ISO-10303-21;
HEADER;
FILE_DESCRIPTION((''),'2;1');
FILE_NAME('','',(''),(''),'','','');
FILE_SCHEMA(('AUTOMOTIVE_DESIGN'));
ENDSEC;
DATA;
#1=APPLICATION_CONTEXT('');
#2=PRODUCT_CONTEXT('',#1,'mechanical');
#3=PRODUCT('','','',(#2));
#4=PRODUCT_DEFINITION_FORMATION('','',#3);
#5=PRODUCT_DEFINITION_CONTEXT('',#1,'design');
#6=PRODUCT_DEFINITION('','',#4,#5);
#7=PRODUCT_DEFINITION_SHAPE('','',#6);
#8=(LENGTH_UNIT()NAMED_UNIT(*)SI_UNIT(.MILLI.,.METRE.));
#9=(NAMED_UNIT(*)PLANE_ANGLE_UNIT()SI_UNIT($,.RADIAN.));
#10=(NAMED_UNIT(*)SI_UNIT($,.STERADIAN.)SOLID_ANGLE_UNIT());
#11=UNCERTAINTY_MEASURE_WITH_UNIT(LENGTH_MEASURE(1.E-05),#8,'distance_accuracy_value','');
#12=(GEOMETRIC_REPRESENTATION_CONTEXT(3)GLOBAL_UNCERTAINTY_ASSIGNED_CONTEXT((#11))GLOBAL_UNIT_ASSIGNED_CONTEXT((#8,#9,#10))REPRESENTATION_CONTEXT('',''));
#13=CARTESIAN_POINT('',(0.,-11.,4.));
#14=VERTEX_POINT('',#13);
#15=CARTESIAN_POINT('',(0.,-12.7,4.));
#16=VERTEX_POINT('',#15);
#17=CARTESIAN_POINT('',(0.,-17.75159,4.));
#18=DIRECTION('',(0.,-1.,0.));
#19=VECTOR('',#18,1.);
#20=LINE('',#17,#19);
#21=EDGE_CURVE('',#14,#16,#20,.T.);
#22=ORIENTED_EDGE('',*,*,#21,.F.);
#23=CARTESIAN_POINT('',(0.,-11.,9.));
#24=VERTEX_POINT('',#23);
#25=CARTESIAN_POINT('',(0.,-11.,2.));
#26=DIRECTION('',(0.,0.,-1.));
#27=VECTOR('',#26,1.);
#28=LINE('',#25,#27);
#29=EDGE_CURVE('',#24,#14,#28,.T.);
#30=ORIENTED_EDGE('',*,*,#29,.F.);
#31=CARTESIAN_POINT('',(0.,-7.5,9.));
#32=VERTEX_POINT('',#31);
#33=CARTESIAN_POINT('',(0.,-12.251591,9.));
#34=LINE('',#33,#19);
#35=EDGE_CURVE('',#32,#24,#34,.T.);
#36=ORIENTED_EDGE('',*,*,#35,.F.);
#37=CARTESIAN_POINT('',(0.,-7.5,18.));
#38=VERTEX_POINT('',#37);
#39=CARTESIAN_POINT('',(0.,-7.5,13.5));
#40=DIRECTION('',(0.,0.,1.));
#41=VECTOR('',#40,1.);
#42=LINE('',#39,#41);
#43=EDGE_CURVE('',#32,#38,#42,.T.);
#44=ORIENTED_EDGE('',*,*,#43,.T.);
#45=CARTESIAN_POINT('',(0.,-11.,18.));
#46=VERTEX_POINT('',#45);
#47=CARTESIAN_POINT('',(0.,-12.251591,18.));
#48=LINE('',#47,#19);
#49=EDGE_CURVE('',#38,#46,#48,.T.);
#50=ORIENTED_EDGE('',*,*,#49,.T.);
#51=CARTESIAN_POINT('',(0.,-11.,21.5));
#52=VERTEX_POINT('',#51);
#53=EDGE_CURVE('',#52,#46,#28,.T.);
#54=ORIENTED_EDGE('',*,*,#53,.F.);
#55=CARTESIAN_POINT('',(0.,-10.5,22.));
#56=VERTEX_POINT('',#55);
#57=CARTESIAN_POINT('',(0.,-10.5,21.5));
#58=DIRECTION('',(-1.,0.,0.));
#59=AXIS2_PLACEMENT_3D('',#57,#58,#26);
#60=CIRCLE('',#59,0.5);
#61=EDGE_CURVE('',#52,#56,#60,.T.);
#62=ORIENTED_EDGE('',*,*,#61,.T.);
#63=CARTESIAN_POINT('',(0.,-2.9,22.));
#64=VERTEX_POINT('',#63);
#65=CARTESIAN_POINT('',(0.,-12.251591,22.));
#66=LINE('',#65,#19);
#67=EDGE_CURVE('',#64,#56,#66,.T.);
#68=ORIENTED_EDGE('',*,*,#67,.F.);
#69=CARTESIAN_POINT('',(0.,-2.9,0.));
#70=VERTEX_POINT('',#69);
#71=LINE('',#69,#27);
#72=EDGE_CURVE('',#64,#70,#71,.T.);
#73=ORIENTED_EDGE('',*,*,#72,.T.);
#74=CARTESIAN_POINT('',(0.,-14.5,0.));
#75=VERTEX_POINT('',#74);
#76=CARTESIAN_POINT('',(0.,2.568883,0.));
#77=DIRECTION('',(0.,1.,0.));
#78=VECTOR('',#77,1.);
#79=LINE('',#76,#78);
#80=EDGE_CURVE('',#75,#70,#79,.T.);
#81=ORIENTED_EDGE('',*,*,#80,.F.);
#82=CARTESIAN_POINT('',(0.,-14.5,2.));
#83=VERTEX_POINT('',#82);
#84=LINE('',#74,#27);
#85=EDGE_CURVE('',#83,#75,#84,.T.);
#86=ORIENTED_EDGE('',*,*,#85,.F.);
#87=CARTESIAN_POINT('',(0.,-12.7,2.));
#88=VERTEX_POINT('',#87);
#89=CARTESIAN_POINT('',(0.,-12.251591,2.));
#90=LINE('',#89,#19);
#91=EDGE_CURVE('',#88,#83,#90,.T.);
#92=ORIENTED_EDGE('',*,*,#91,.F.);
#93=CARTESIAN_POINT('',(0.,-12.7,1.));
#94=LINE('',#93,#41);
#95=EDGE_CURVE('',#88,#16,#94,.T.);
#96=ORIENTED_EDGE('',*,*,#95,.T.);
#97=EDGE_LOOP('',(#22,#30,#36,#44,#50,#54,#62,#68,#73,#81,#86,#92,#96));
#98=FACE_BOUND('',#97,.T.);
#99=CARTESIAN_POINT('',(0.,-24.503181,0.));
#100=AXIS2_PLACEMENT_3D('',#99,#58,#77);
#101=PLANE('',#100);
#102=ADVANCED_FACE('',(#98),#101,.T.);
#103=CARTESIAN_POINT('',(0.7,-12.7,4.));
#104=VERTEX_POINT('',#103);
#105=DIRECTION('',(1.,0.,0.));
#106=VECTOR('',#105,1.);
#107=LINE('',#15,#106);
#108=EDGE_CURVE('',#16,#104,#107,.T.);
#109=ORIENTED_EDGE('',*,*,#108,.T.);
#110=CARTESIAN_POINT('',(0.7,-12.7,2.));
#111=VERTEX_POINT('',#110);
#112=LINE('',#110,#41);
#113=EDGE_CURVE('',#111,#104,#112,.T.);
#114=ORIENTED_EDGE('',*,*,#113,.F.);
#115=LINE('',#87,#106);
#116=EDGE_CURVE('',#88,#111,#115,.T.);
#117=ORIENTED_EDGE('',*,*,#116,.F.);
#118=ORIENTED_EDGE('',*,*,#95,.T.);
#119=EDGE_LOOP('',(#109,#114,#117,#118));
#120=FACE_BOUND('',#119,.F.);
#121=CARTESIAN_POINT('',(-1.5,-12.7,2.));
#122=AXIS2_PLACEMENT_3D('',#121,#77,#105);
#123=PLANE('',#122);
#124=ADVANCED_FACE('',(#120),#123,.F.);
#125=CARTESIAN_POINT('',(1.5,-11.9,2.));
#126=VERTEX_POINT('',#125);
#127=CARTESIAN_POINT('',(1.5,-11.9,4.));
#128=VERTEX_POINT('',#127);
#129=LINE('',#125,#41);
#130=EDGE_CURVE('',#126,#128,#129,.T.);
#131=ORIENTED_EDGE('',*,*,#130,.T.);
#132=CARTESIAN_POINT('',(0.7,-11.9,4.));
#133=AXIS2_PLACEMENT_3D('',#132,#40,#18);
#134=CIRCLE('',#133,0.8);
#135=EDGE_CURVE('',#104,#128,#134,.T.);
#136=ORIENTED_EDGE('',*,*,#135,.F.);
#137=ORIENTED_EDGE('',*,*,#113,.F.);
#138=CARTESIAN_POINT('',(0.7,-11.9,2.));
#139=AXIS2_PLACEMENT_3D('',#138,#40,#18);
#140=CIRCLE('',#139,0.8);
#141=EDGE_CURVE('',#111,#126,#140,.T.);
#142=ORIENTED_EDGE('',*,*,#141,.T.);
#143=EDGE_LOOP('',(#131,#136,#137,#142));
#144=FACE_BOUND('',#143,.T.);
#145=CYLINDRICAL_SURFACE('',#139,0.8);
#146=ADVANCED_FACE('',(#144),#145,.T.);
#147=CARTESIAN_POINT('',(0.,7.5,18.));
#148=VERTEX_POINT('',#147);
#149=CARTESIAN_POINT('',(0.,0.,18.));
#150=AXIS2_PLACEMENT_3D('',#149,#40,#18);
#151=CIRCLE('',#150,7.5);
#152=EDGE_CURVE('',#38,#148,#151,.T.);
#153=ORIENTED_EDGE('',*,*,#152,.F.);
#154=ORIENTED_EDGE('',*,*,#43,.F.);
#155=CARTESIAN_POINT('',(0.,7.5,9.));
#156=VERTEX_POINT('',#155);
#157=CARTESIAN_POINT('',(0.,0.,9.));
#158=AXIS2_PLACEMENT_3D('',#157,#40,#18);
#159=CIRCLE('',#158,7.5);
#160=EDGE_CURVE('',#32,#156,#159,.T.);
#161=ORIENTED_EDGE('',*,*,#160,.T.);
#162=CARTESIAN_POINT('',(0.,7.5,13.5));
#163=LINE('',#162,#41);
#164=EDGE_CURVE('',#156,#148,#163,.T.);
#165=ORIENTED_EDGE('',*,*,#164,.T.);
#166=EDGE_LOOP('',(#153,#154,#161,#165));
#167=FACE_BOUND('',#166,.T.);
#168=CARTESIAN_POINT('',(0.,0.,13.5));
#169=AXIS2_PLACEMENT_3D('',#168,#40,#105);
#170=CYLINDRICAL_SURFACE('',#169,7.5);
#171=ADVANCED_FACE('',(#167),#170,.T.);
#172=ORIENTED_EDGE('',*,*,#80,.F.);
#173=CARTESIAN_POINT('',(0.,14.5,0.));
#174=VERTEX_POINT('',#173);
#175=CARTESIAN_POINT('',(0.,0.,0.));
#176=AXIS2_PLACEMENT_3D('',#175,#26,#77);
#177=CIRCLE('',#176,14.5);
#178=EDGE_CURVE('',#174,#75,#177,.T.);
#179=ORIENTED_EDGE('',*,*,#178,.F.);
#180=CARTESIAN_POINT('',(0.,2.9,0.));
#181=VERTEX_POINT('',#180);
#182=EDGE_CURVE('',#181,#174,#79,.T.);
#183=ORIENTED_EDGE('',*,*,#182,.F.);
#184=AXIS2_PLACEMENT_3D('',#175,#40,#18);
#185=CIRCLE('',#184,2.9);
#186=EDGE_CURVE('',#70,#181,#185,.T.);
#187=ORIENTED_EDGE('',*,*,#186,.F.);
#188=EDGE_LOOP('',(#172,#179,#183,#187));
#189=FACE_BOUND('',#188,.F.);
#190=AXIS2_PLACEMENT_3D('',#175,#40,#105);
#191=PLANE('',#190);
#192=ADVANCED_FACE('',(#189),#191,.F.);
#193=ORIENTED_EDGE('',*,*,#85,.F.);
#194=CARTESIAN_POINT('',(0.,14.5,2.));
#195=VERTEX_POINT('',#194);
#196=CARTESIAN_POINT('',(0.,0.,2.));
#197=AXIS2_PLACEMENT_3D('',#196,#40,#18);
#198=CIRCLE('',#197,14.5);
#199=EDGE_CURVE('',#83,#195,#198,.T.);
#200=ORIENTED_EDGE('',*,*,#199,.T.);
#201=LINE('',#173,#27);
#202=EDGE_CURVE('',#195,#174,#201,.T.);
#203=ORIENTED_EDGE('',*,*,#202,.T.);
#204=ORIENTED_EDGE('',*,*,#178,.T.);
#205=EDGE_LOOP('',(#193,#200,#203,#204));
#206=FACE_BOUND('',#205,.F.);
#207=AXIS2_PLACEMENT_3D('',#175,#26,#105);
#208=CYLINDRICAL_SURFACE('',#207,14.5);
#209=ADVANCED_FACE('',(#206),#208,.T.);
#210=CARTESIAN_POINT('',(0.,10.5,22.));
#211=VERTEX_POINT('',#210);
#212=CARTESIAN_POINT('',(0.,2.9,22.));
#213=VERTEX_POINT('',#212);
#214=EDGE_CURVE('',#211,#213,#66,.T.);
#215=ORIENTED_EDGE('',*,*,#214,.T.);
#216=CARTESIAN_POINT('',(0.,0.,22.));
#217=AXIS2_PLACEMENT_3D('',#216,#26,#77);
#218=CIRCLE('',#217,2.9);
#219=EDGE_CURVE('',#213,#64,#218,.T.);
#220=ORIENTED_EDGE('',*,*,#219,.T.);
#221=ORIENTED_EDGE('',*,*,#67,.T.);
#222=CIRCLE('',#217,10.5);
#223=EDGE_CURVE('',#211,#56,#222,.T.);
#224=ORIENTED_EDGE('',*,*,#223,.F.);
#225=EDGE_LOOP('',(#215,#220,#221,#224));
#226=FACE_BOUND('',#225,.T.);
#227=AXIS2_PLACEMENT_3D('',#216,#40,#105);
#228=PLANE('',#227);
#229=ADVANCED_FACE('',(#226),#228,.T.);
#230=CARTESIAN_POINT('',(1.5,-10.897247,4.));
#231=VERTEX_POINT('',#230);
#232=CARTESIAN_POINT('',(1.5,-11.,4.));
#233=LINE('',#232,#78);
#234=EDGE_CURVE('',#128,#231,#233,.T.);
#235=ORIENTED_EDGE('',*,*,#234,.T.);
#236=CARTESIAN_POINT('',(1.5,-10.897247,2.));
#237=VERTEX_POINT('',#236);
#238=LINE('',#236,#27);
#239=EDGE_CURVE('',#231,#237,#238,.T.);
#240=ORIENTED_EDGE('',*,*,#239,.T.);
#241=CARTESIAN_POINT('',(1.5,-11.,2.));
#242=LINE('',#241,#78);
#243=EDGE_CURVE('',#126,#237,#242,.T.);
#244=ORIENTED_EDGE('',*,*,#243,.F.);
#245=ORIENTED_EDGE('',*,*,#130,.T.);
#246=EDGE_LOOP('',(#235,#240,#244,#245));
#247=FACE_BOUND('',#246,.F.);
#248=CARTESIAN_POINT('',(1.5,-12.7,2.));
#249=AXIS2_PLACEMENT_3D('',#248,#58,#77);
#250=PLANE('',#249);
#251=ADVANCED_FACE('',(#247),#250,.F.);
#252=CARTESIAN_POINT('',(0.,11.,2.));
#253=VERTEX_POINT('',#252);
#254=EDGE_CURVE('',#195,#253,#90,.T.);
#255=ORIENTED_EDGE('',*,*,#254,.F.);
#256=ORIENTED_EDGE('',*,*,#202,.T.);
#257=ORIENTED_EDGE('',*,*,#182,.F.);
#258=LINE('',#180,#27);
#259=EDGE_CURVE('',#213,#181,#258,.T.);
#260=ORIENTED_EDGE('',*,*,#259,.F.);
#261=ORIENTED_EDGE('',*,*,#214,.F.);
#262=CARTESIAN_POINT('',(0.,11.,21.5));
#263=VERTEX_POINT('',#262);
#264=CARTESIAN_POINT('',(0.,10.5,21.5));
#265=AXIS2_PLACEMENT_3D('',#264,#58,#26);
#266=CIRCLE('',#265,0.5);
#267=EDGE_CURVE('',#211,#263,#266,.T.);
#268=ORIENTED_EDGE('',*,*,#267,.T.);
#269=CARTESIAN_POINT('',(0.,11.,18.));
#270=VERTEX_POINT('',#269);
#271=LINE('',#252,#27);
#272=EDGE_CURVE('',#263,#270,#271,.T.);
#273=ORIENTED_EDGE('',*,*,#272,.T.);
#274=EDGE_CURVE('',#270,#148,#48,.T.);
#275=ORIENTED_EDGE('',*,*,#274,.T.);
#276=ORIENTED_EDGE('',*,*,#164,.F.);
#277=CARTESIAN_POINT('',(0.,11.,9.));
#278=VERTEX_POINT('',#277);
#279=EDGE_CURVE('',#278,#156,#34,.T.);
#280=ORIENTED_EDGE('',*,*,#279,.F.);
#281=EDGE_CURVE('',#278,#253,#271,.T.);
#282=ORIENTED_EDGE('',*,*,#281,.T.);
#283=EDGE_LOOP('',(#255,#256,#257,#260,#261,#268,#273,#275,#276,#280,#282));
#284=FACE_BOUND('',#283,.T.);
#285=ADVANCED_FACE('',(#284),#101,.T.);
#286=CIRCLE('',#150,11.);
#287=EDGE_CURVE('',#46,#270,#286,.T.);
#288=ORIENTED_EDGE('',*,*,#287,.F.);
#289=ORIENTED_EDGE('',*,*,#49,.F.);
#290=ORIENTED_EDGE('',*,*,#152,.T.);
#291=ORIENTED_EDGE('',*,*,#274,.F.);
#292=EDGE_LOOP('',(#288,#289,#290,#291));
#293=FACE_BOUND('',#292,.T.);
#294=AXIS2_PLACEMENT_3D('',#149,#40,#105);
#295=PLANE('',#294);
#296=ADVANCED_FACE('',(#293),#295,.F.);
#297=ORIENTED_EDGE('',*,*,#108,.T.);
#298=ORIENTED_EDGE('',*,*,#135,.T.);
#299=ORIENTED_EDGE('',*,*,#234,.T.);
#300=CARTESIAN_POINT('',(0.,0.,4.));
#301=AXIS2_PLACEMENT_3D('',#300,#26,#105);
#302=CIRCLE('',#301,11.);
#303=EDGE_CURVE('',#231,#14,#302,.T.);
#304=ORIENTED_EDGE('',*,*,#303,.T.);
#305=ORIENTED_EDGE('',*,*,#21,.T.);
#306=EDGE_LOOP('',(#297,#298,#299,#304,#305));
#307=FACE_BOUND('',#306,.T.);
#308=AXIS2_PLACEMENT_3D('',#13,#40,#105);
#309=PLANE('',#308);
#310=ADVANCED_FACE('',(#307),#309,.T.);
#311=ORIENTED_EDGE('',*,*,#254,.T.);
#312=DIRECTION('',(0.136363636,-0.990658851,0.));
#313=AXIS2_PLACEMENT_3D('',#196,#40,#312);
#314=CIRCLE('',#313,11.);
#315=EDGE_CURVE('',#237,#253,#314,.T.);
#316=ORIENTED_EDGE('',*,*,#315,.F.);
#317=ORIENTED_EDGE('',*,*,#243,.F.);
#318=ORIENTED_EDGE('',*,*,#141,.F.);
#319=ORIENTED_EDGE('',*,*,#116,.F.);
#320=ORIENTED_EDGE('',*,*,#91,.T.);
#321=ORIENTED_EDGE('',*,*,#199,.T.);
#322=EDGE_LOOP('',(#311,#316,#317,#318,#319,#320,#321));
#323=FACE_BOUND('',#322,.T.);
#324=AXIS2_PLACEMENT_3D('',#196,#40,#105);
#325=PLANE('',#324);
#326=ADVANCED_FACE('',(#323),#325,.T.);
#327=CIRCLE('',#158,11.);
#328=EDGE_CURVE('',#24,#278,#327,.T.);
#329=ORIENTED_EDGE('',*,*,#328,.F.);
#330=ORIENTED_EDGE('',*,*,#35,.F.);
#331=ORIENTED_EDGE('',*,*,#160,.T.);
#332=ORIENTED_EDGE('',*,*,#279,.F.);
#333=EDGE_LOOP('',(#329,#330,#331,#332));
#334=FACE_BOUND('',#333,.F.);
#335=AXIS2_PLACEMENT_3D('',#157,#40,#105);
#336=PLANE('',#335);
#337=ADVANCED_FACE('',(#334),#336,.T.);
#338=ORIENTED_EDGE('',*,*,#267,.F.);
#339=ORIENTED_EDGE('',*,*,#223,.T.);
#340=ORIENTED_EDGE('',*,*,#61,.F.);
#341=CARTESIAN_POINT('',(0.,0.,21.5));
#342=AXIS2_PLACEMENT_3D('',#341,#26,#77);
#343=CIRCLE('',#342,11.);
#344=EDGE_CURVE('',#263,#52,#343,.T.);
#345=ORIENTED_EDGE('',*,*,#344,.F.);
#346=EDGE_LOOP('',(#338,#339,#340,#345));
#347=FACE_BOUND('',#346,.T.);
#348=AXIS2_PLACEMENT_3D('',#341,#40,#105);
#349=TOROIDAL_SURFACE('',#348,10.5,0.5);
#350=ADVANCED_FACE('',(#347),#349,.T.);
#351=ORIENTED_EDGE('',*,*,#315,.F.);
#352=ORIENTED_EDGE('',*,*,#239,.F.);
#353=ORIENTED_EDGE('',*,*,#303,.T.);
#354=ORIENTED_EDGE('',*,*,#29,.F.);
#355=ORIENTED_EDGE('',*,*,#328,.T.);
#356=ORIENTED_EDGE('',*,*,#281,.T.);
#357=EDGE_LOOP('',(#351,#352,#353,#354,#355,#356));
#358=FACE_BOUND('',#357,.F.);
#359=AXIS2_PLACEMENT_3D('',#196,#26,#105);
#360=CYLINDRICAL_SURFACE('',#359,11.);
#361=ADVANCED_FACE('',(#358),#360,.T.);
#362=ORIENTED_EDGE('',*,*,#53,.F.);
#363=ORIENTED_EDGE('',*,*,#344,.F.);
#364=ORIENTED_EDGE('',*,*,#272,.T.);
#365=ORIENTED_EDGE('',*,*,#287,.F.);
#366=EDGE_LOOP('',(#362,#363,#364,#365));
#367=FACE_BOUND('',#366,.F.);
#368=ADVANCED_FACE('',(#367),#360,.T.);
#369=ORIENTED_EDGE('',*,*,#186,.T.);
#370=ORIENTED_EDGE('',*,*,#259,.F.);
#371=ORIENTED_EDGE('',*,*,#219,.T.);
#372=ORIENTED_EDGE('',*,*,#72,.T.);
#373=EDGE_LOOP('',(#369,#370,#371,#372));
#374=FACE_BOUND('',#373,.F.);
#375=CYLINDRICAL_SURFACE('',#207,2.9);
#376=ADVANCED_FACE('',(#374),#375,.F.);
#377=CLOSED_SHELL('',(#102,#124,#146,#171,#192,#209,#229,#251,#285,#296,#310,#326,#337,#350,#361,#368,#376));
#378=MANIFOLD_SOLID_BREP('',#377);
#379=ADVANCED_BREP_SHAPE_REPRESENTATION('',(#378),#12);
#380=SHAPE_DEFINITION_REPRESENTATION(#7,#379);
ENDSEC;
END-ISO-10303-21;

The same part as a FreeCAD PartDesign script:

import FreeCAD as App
import Part
import Sketcher

V = App.Vector
Q = App.Units.Quantity


def edges_at(feature, points):
    """Names of the edges that pass closest to the given points."""
    edges = feature.Shape.Edges
    near = lambda p: min(range(len(edges)), key=lambda i: edges[i].distToShape(Part.Vertex(*p))[0])
    return sorted({f"Edge{near(p) + 1}" for p in points})

doc = App.newDocument("Part")
params = doc.addObject("Spreadsheet::Sheet", "Params")
for row, (alias, value) in enumerate([
    ("sketch1_diameter", "29 mm"),
    ("pad1_length", "2 mm"),
    ("sketch2_diameter", "22 mm"),
    ("pad2_length", "20 mm"),
    ("sketch3_diameter", "5.8 mm"),
    ("sketch4_width", "3 mm"),
    ("sketch4_height", "3.4 mm"),
    ("pad3_length", "2 mm"),
    ("fillet_radius", "0.8 mm"),
    ("fillet2_radius", "0.5 mm"),
    ("sketch6_height", "9 mm"),
    ("sketch6_width", "3.5 mm"),
    ("groove_angle", "360 deg"),
], start=1):
    params.set(f"A{row}", alias)
    params.set(f"B{row}", "=" + value)
    params.setAlias(f"B{row}", alias)

body = doc.addObject("PartDesign::Body", "Body")

sketch1 = body.newObject("Sketcher::SketchObject", "Sketch")
sketch1.AttachmentSupport = (doc.getObject("XY_Plane"), [""])
sketch1.MapMode = "FlatFace"
sketch1.addGeometry(Part.Circle(V(0, 0, 0), V(0, 0, 1), 14), False)
sketch1.addConstraint(Sketcher.Constraint("Coincident", 0, 3, -1, 1))
sketch1.addConstraint(Sketcher.Constraint("Diameter", 0, Q("29 mm")))
sketch1.setExpression("Constraints[1]", "Params.sketch1_diameter")
pad1 = body.newObject("PartDesign::Pad", "Pad")
pad1.Profile = sketch1
pad1.setExpression("Length", "Params.pad1_length")

sketch2 = body.newObject("Sketcher::SketchObject", "Sketch001")
sketch2.AttachmentSupport = (doc.getObject("XY_Plane"), [""])
sketch2.MapMode = "FlatFace"
sketch2.AttachmentOffset = App.Placement(V(0, 0, 2), App.Rotation())
sketch2.addGeometry(Part.Circle(V(0, 0, 0), V(0, 0, 1), 11), False)
sketch2.addConstraint(Sketcher.Constraint("Coincident", 0, 3, -1, 1))
sketch2.addConstraint(Sketcher.Constraint("Diameter", 0, Q("22 mm")))
sketch2.setExpression("Constraints[1]", "Params.sketch2_diameter")
pad2 = body.newObject("PartDesign::Pad", "Pad001")
pad2.Profile = sketch2
pad2.setExpression("Length", "Params.pad2_length")

sketch3 = body.newObject("Sketcher::SketchObject", "Sketch002")
sketch3.AttachmentSupport = (doc.getObject("XY_Plane"), [""])
sketch3.MapMode = "FlatFace"
sketch3.addGeometry(Part.Circle(V(0, 0, 0), V(0, 0, 1), 2.9), False)
sketch3.addConstraint(Sketcher.Constraint("Coincident", 0, 3, -1, 1))
sketch3.addConstraint(Sketcher.Constraint("Diameter", 0, Q("5.8 mm")))
sketch3.setExpression("Constraints[1]", "Params.sketch3_diameter")
pocket1 = body.newObject("PartDesign::Pocket", "Pocket")
pocket1.Profile = sketch3
pocket1.Type = "ThroughAll"
pocket1.Reversed = True

sketch4 = body.newObject("Sketcher::SketchObject", "Sketch003")
sketch4.AttachmentSupport = (doc.getObject("XY_Plane"), [""])
sketch4.MapMode = "FlatFace"
sketch4.AttachmentOffset = App.Placement(V(0, 0, 2), App.Rotation())
sketch4.addGeometry(Part.LineSegment(V(-1.5, -9.3, 0), V(-1.5, -12.7, 0)), False)
sketch4.addGeometry(Part.LineSegment(V(-1.5, -12.7, 0), V(1.5, -12.7, 0)), False)
sketch4.addGeometry(Part.LineSegment(V(1.5, -12.7, 0), V(1.5, -9.3, 0)), False)
sketch4.addGeometry(Part.LineSegment(V(1.5, -9.3, 0), V(-1.5, -9.3, 0)), False)
sketch4.addConstraint(Sketcher.Constraint("Coincident", 0, 2, 1, 1))
sketch4.addConstraint(Sketcher.Constraint("Coincident", 1, 2, 2, 1))
sketch4.addConstraint(Sketcher.Constraint("Coincident", 2, 2, 3, 1))
sketch4.addConstraint(Sketcher.Constraint("Coincident", 3, 2, 0, 1))
sketch4.addConstraint(Sketcher.Constraint("Vertical", 0))
sketch4.addConstraint(Sketcher.Constraint("Horizontal", 1))
sketch4.addConstraint(Sketcher.Constraint("Vertical", 2))
sketch4.addConstraint(Sketcher.Constraint("Horizontal", 3))
sketch4.addConstraint(Sketcher.Constraint("DistanceX", 1, 1, 1, 2, Q("3 mm")))
sketch4.addConstraint(Sketcher.Constraint("DistanceY", 0, 2, 0, 1, Q("3.4 mm")))
sketch4.addConstraint(Sketcher.Constraint("DistanceX", 0, 2, -1, 1, Q("1.5 mm")))
sketch4.addConstraint(Sketcher.Constraint("DistanceY", 0, 2, -1, 1, Q("12.7 mm")))
sketch4.setExpression("Constraints[8]", "Params.sketch4_width")
sketch4.setExpression("Constraints[9]", "Params.sketch4_height")
pad3 = body.newObject("PartDesign::Pad", "Pad002")
pad3.Profile = sketch4
pad3.setExpression("Length", "Params.pad3_length")
doc.recompute()

fillet = body.newObject("PartDesign::Fillet", "Fillet")
fillet.Base = (pad3, edges_at(pad3, [(-1.5, -12.7, 3), (1.5, -12.7, 3)]))
fillet.setExpression("Radius", "Params.fillet_radius")
doc.recompute()

fillet2 = body.newObject("PartDesign::Fillet", "Fillet001")
fillet2.Base = (fillet, edges_at(fillet, [(-11, 0, 22)]))
fillet2.setExpression("Radius", "Params.fillet2_radius")

sketch5 = body.newObject("Sketcher::SketchObject", "Sketch004")
sketch5.AttachmentSupport = (doc.getObject("XY_Plane"), [""])
sketch5.MapMode = "FlatFace"
sketch5.addGeometry(Part.LineSegment(V(-29, 30, 0), V(-29, -25, 0)), False)
sketch5.addGeometry(Part.LineSegment(V(-29, -25, 0), V(0, -25, 0)), False)
sketch5.addGeometry(Part.LineSegment(V(0, -25, 0), V(0, 30, 0)), False)
sketch5.addGeometry(Part.LineSegment(V(0, 30, 0), V(-29, 30, 0)), False)
sketch5.addConstraint(Sketcher.Constraint("Coincident", 0, 2, 1, 1))
sketch5.addConstraint(Sketcher.Constraint("Coincident", 1, 2, 2, 1))
sketch5.addConstraint(Sketcher.Constraint("Coincident", 2, 2, 3, 1))
sketch5.addConstraint(Sketcher.Constraint("Coincident", 3, 2, 0, 1))
sketch5.addConstraint(Sketcher.Constraint("Vertical", 0))
sketch5.addConstraint(Sketcher.Constraint("Horizontal", 1))
sketch5.addConstraint(Sketcher.Constraint("Vertical", 2))
sketch5.addConstraint(Sketcher.Constraint("Horizontal", 3))
sketch5.addConstraint(Sketcher.Constraint("PointOnObject", 1, 2, -2))
sketch5.addConstraint(Sketcher.Constraint("DistanceX", 1, 1, 1, 2, Q("28.85052 mm")))
sketch5.addConstraint(Sketcher.Constraint("DistanceY", 0, 2, 0, 1, Q("54.144128 mm")))
sketch5.addConstraint(Sketcher.Constraint("DistanceY", 0, 2, -1, 1, Q("24.503181 mm")))
pocket2 = body.newObject("PartDesign::Pocket", "Pocket001")
pocket2.Profile = sketch5
pocket2.Type = "ThroughAll"
pocket2.Reversed = True

sketch6 = body.newObject("Sketcher::SketchObject", "Sketch005")
sketch6.AttachmentSupport = (doc.getObject("XZ_Plane"), [""])
sketch6.MapMode = "FlatFace"
sketch6.addGeometry(Part.LineSegment(V(7.5, 18, 0), V(7.5, 9, 0)), False)
sketch6.addGeometry(Part.LineSegment(V(7.5, 9, 0), V(11, 9, 0)), False)
sketch6.addGeometry(Part.LineSegment(V(11, 9, 0), V(11, 18, 0)), False)
sketch6.addGeometry(Part.LineSegment(V(11, 18, 0), V(7.5, 18, 0)), False)
sketch6.addConstraint(Sketcher.Constraint("Coincident", 0, 2, 1, 1))
sketch6.addConstraint(Sketcher.Constraint("Coincident", 1, 2, 2, 1))
sketch6.addConstraint(Sketcher.Constraint("Coincident", 2, 2, 3, 1))
sketch6.addConstraint(Sketcher.Constraint("Coincident", 3, 2, 0, 1))
sketch6.addConstraint(Sketcher.Constraint("Vertical", 0))
sketch6.addConstraint(Sketcher.Constraint("Horizontal", 1))
sketch6.addConstraint(Sketcher.Constraint("Vertical", 2))
sketch6.addConstraint(Sketcher.Constraint("Horizontal", 3))
sketch6.addConstraint(Sketcher.Constraint("DistanceY", 0, 2, 0, 1, Q("9 mm")))
sketch6.addConstraint(Sketcher.Constraint("DistanceX", 1, 1, 1, 2, Q("3.5 mm")))
sketch6.addConstraint(Sketcher.Constraint("DistanceY", -1, 1, 0, 2, Q("9 mm")))
sketch6.addConstraint(Sketcher.Constraint("DistanceX", -1, 1, 1, 2, Q("11 mm")))
sketch6.setExpression("Constraints[8]", "Params.sketch6_height")
sketch6.setExpression("Constraints[9]", "Params.sketch6_width")
groove = body.newObject("PartDesign::Groove", "Groove")
groove.Profile = sketch6
groove.ReferenceAxis = (sketch6, ["V_Axis"])
groove.setExpression("Angle", "Params.groove_angle")

doc.recompute()
